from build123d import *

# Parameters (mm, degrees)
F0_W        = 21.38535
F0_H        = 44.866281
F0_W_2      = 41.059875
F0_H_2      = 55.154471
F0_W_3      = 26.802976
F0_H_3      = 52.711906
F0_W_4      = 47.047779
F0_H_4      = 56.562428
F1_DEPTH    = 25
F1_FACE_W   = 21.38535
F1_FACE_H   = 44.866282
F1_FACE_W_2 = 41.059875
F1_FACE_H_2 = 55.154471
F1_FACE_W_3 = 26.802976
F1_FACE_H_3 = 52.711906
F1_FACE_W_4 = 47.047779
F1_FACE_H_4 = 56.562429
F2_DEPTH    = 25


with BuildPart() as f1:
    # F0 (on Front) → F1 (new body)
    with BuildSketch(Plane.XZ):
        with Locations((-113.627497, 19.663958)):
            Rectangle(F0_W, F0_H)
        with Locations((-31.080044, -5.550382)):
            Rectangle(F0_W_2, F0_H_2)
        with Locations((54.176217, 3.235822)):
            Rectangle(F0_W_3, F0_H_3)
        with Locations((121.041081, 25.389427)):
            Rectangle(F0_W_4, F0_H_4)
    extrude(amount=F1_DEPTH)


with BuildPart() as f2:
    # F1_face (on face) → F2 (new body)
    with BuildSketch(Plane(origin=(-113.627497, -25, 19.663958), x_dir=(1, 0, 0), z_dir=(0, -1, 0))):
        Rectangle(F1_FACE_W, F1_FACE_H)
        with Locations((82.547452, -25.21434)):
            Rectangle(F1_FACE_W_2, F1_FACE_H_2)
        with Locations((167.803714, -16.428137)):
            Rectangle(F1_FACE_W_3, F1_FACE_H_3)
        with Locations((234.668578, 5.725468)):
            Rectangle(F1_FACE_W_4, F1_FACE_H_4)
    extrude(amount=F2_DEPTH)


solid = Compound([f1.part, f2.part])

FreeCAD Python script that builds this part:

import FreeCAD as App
import Part
import Sketcher
from FreeCAD import Vector
Q = App.Units.Quantity


def add_polygon(sketch, points):
    """Adds a closed chain of lines whose ends are joined by coincident constraints."""
    first, n = sketch.GeometryCount, len(points)
    for a, b in zip(points, points[1:] + points[:1]):
        sketch.addGeometry(Part.LineSegment(App.Vector(*a, 0), App.Vector(*b, 0)), False)
    for i in range(n):
        sketch.addConstraint(Sketcher.Constraint("Coincident", first + i, 2, first + (i + 1) % n, 1))

doc = App.newDocument("Part")
body = doc.addObject("PartDesign::Body", "Body")
body.AllowCompound = True

# Sketch on XZ plane
sketch1 = doc.addObject("Sketcher::SketchObject", "Sketch")
body.addObject(sketch1)
sketch1.AttachmentSupport = (doc.XZ_Plane, [""])
sketch1.MapMode = "FlatFace"
add_polygon(sketch1, [(-124, 42), (-124, -3), (-103, -3), (-103, 42)])  # lines 0-3
add_polygon(sketch1, [(-52, 22), (-52, -33), (-11, -33), (-11, 22)])  # lines 4-7
add_polygon(sketch1, [(41, 30), (41, -23), (68, -23), (68, 30)])  # lines 8-11
add_polygon(sketch1, [(98, 54), (98, -3), (145, -3), (145, 54)])  # lines 12-15
sketch1.addConstraint(Sketcher.Constraint("Vertical", 0))
sketch1.addConstraint(Sketcher.Constraint("Horizontal", 1))
sketch1.addConstraint(Sketcher.Constraint("Vertical", 2))
sketch1.addConstraint(Sketcher.Constraint("Horizontal", 3))
sketch1.addConstraint(Sketcher.Constraint("Vertical", 4))
sketch1.addConstraint(Sketcher.Constraint("Horizontal", 5))
sketch1.addConstraint(Sketcher.Constraint("Vertical", 6))
sketch1.addConstraint(Sketcher.Constraint("Horizontal", 7))
sketch1.addConstraint(Sketcher.Constraint("Vertical", 8))
sketch1.addConstraint(Sketcher.Constraint("Horizontal", 9))
sketch1.addConstraint(Sketcher.Constraint("Vertical", 10))
sketch1.addConstraint(Sketcher.Constraint("Horizontal", 11))
sketch1.addConstraint(Sketcher.Constraint("Vertical", 12))
sketch1.addConstraint(Sketcher.Constraint("Horizontal", 13))
sketch1.addConstraint(Sketcher.Constraint("Vertical", 14))
sketch1.addConstraint(Sketcher.Constraint("Horizontal", 15))
sketch1.addConstraint(Sketcher.Constraint("DistanceX", 1, 1, 1, 2, Q("21.38535 mm")))
sketch1.addConstraint(Sketcher.Constraint("DistanceX", 13, 1, 13, 2, Q("47.047779 mm")))
sketch1.addConstraint(Sketcher.Constraint("DistanceY", 0, 2, 0, 1, Q("44.866281 mm")))
sketch1.addConstraint(Sketcher.Constraint("DistanceY", 4, 2, 4, 1, Q("55.154471 mm")))
sketch1.addConstraint(Sketcher.Constraint("DistanceY", 12, 2, 12, 1, Q("56.562428 mm")))
sketch1.addConstraint(Sketcher.Constraint("DistanceY", -1, 1, 2, 2, Q("42.097099 mm")))
sketch1.addConstraint(Sketcher.Constraint("DistanceX", 5, 1, 5, 2, Q("41.059875 mm")))
sketch1.addConstraint(Sketcher.Constraint("DistanceX", 9, 1, 9, 2, Q("26.802976 mm")))
sketch1.addConstraint(Sketcher.Constraint("DistanceY", 8, 2, 8, 1, Q("52.711906 mm")))
sketch1.addConstraint(Sketcher.Constraint("DistanceX", 0, 2, -1, 1, Q("124.320172 mm")))
sketch1.addConstraint(Sketcher.Constraint("DistanceX", 4, 2, -1, 1, Q("51.609982 mm")))
sketch1.addConstraint(Sketcher.Constraint("DistanceX", -1, 1, 8, 2, Q("40.774729 mm")))
sketch1.addConstraint(Sketcher.Constraint("DistanceY", 8, 2, -1, 1, Q("23.120131 mm")))
sketch1.addConstraint(Sketcher.Constraint("DistanceX", -1, 1, 12, 2, Q("97.517191 mm")))
sketch1.addConstraint(Sketcher.Constraint("DistanceY", -1, 1, 14, 2, Q("53.670641 mm")))
sketch1.addConstraint(Sketcher.Constraint("DistanceY", 6, 2, 10, 2, Q("7.564921 mm")))
pad1 = doc.addObject("PartDesign::Pad", "Pad")
body.addObject(pad1)
pad1.Profile = sketch1
pad1.Length = 25
body2 = doc.addObject("PartDesign::Body", "Body001")
body2.AllowCompound = True

# Sketch on XZ plane
sketch2 = doc.addObject("Sketcher::SketchObject", "Sketch001")
body2.addObject(sketch2)
sketch2.AttachmentSupport = (doc.getObject("XZ_Plane001"), [""])
sketch2.MapMode = "FlatFace"
sketch2.AttachmentOffset = App.Placement(Vector(0, 0, 25), App.Rotation())
add_polygon(sketch2, [(-124, 42), (-124, -3), (-103, -3), (-103, 42)])  # lines 0-3
add_polygon(sketch2, [(-52, 22), (-52, -33), (-11, -33), (-11, 22)])  # lines 4-7
add_polygon(sketch2, [(41, 30), (41, -23), (68, -23), (68, 30)])  # lines 8-11
add_polygon(sketch2, [(98, 54), (98, -3), (145, -3), (145, 54)])  # lines 12-15
sketch2.addConstraint(Sketcher.Constraint("Vertical", 0))
sketch2.addConstraint(Sketcher.Constraint("Horizontal", 1))
sketch2.addConstraint(Sketcher.Constraint("Vertical", 2))
sketch2.addConstraint(Sketcher.Constraint("Horizontal", 3))
sketch2.addConstraint(Sketcher.Constraint("Vertical", 4))
sketch2.addConstraint(Sketcher.Constraint("Horizontal", 5))
sketch2.addConstraint(Sketcher.Constraint("Vertical", 6))
sketch2.addConstraint(Sketcher.Constraint("Horizontal", 7))
sketch2.addConstraint(Sketcher.Constraint("Vertical", 8))
sketch2.addConstraint(Sketcher.Constraint("Horizontal", 9))
sketch2.addConstraint(Sketcher.Constraint("Vertical", 10))
sketch2.addConstraint(Sketcher.Constraint("Horizontal", 11))
sketch2.addConstraint(Sketcher.Constraint("Vertical", 12))
sketch2.addConstraint(Sketcher.Constraint("Horizontal", 13))
sketch2.addConstraint(Sketcher.Constraint("Vertical", 14))
sketch2.addConstraint(Sketcher.Constraint("Horizontal", 15))
sketch2.addConstraint(Sketcher.Constraint("DistanceX", 1, 1, 1, 2, Q("21.38535 mm")))
sketch2.addConstraint(Sketcher.Constraint("DistanceX", 13, 1, 13, 2, Q("47.047779 mm")))
sketch2.addConstraint(Sketcher.Constraint("DistanceY", 0, 2, 0, 1, Q("44.866282 mm")))
sketch2.addConstraint(Sketcher.Constraint("DistanceY", 4, 2, 4, 1, Q("55.154471 mm")))
sketch2.addConstraint(Sketcher.Constraint("DistanceY", 12, 2, 12, 1, Q("56.562429 mm")))
sketch2.addConstraint(Sketcher.Constraint("DistanceY", -1, 1, 2, 2, Q("42.097099 mm")))
sketch2.addConstraint(Sketcher.Constraint("DistanceX", 6, 2, 12, 2, Q("108.067299 mm")))
sketch2.addConstraint(Sketcher.Constraint("DistanceX", 5, 1, 5, 2, Q("41.059875 mm")))
sketch2.addConstraint(Sketcher.Constraint("DistanceX", 9, 1, 9, 2, Q("26.802976 mm")))
sketch2.addConstraint(Sketcher.Constraint("DistanceY", 8, 2, 8, 1, Q("52.711906 mm")))
sketch2.addConstraint(Sketcher.Constraint("DistanceX", 0, 2, -1, 1, Q("124.320172 mm")))
sketch2.addConstraint(Sketcher.Constraint("DistanceX", -1, 1, 8, 2, Q("40.774729 mm")))
sketch2.addConstraint(Sketcher.Constraint("DistanceX", -1, 1, 12, 2, Q("97.517191 mm")))
sketch2.addConstraint(Sketcher.Constraint("DistanceY", 12, 2, -1, 1, Q("2.891789 mm")))
sketch2.addConstraint(Sketcher.Constraint("DistanceY", 8, 2, 1, 2, Q("20.350949 mm")))
sketch2.addConstraint(Sketcher.Constraint("DistanceY", 6, 2, 10, 2, Q("7.56492 mm")))
pad2 = doc.addObject("PartDesign::Pad", "Pad001")
body2.addObject(pad2)
pad2.Profile = sketch2
pad2.Length = 25

doc.recompute()
